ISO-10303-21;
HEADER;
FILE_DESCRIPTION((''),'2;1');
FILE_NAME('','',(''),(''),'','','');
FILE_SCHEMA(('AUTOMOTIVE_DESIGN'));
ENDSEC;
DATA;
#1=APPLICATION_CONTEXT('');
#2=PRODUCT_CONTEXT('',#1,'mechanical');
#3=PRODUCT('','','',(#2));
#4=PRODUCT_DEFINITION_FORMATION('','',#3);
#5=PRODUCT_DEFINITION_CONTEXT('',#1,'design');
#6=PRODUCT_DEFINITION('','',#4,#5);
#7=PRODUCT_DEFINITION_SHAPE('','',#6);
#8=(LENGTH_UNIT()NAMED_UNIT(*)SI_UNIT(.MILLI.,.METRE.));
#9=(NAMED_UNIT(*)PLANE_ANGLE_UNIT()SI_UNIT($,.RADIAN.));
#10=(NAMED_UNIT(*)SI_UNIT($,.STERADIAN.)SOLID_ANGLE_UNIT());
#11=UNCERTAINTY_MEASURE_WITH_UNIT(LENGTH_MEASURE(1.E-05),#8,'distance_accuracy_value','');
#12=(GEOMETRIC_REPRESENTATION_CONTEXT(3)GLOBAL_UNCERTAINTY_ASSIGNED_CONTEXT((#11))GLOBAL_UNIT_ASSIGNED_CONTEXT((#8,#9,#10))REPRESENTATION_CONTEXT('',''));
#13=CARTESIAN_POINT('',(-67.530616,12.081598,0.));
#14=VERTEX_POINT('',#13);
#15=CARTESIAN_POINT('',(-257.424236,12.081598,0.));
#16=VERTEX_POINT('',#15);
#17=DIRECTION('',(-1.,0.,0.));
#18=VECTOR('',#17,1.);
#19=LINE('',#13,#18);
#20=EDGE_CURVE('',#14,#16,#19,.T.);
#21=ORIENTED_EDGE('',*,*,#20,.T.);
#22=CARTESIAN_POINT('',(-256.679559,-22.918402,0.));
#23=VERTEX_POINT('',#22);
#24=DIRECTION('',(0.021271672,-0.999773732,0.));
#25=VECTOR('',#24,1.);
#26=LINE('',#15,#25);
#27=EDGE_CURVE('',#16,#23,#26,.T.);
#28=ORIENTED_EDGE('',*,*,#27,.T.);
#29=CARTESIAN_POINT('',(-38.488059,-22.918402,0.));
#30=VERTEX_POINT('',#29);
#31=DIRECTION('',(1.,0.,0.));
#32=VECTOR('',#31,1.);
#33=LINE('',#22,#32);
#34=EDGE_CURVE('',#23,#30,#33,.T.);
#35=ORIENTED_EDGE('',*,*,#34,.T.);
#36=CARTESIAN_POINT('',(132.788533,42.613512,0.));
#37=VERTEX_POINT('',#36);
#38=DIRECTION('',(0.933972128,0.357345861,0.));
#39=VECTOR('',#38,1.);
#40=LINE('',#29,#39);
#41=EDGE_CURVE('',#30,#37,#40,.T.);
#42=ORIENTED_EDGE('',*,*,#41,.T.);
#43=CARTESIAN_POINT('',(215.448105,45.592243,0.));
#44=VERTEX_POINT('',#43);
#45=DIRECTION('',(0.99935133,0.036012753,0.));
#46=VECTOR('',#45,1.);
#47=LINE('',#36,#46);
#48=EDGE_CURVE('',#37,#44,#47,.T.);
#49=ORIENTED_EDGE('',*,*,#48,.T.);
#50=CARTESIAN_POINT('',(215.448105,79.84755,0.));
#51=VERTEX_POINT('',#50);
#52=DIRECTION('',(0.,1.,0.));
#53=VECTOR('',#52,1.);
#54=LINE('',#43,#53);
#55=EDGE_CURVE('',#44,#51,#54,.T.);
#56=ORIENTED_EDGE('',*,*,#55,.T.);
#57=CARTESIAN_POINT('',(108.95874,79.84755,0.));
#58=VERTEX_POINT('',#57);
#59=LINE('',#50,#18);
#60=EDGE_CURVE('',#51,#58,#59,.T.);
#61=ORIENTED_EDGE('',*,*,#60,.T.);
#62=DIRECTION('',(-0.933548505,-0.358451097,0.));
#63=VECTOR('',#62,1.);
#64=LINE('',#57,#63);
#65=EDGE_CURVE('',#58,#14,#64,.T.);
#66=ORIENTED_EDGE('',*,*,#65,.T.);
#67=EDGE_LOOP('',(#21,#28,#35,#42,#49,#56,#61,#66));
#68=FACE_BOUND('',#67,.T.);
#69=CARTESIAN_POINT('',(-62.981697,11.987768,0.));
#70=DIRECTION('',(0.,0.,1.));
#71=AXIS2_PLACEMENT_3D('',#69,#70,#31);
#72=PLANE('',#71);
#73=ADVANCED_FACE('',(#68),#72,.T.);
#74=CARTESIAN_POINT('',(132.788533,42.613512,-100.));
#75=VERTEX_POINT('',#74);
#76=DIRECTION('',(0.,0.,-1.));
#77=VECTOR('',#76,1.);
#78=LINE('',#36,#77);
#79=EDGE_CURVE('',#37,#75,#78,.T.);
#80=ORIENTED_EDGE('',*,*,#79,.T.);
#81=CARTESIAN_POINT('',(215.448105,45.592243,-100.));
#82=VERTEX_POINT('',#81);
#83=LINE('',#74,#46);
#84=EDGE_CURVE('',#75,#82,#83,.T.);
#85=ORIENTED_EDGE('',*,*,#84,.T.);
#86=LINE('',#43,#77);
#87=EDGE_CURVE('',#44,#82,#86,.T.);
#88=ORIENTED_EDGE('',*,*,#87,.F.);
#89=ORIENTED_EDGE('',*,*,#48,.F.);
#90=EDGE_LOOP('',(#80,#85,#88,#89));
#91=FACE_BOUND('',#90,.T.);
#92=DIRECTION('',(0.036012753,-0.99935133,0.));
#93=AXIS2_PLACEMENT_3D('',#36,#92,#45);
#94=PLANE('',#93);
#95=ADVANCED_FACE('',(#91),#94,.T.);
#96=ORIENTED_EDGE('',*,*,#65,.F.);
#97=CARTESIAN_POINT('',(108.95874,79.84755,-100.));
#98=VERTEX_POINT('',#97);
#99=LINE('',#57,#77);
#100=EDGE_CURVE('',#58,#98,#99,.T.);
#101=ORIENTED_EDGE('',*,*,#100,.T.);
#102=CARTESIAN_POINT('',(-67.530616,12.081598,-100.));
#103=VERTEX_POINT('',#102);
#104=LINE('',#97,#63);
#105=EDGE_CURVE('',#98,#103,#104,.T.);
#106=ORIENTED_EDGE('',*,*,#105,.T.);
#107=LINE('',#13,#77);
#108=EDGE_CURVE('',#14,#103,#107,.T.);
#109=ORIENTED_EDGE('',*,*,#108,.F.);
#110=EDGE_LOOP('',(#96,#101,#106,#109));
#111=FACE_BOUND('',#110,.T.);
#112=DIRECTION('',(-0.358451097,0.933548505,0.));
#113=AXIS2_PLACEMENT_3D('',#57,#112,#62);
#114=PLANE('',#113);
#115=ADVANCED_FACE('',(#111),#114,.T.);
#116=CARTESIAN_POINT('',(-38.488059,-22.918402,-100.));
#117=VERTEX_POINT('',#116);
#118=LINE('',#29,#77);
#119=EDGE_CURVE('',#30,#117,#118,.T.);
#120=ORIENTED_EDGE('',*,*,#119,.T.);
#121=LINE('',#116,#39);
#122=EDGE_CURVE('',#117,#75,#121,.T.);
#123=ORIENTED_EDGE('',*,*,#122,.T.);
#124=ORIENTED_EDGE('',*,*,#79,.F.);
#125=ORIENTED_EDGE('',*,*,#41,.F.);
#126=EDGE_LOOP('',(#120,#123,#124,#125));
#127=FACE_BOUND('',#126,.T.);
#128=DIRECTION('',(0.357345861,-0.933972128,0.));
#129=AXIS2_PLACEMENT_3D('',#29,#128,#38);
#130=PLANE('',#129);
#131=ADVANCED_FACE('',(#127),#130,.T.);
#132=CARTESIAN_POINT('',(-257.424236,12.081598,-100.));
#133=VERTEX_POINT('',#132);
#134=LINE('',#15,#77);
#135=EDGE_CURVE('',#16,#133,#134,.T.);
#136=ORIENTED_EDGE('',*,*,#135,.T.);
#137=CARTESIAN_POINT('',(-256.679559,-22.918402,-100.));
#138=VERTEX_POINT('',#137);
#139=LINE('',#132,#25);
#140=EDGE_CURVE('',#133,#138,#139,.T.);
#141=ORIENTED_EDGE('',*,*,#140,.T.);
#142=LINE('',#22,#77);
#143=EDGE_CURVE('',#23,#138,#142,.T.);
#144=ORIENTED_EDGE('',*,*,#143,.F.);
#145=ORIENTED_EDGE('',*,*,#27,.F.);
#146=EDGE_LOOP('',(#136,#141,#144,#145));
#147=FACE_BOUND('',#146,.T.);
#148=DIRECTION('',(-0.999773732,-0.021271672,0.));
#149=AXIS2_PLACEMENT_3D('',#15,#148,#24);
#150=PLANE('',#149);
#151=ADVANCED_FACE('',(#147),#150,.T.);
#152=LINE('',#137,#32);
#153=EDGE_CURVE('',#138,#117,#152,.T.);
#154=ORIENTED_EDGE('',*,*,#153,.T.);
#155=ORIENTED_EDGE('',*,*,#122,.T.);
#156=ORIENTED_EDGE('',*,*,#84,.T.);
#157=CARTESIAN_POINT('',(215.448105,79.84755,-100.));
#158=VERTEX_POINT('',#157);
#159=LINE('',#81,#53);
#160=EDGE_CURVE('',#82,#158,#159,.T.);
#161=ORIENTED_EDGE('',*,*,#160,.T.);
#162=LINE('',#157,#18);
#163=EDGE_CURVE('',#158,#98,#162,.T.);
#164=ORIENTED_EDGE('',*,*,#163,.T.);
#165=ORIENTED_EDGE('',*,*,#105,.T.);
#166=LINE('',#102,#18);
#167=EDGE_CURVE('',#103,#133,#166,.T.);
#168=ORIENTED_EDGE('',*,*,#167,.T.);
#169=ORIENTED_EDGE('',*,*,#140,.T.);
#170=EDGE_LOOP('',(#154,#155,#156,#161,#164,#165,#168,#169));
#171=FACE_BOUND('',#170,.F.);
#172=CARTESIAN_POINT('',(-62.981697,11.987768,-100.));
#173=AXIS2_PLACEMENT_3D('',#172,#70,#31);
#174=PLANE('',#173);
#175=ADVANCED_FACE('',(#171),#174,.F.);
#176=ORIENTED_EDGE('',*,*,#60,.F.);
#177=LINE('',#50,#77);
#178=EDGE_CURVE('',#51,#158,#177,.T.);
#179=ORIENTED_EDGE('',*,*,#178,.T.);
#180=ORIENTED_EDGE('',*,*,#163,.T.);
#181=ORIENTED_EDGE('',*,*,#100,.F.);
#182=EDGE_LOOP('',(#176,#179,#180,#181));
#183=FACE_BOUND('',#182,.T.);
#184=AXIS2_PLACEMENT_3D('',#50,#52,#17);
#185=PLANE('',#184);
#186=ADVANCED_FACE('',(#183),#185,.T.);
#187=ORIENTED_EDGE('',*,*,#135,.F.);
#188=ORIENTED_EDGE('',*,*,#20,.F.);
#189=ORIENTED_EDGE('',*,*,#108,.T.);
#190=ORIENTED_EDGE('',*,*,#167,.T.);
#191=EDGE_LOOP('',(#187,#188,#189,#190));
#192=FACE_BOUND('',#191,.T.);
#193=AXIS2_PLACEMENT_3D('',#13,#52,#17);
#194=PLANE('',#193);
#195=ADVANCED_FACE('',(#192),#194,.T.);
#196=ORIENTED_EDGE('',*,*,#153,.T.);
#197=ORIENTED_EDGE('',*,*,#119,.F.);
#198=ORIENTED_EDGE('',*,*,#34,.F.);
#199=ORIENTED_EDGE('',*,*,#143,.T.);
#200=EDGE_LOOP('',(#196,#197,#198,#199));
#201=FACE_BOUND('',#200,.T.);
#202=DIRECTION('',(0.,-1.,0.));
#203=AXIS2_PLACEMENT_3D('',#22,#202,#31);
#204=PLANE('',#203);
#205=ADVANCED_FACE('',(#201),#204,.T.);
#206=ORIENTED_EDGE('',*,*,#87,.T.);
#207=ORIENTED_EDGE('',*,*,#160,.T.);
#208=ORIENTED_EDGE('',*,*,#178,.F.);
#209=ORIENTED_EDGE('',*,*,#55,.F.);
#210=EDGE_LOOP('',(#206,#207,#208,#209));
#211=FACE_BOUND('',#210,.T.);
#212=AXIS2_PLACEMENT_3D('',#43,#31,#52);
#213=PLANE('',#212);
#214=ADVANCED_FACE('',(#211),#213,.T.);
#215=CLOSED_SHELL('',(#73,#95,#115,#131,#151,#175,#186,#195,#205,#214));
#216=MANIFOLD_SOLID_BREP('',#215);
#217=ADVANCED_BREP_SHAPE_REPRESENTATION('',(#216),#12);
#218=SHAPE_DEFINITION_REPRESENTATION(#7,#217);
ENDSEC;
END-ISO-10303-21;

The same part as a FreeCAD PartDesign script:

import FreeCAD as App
import Part
import Sketcher

V = App.Vector
Q = App.Units.Quantity


def add_polygon(sketch, points):
    """Adds a closed chain of lines whose ends are joined by coincident constraints."""
    first, n = sketch.GeometryCount, len(points)
    for a, b in zip(points, points[1:] + points[:1]):
        sketch.addGeometry(Part.LineSegment(App.Vector(*a, 0), App.Vector(*b, 0)), False)
    for i in range(n):
        sketch.addConstraint(Sketcher.Constraint("Coincident", first + i, 2, first + (i + 1) % n, 1))

doc = App.newDocument("Part")
body = doc.addObject("PartDesign::Body", "Body")

sketch1 = body.newObject("Sketcher::SketchObject", "Sketch")
sketch1.AttachmentSupport = (doc.getObject("XY_Plane"), [""])
sketch1.MapMode = "FlatFace"
add_polygon(sketch1, [(-68, 12), (-257, 12), (-257, -23), (-38, -23), (133, 43), (215, 46), (215, 80), (109, 80)])
sketch1.addConstraint(Sketcher.Constraint("Horizontal", 0))
sketch1.addConstraint(Sketcher.Constraint("Horizontal", 2))
sketch1.addConstraint(Sketcher.Constraint("Vertical", 5))
sketch1.addConstraint(Sketcher.Constraint("Horizontal", 6))
sketch1.addConstraint(Sketcher.Constraint("DistanceY", 1, 2, 0, 2, Q("35 mm")))
sketch1.addConstraint(Sketcher.Constraint("DistanceX", 2, 1, 2, 2, Q("218.1915 mm")))
sketch1.addConstraint(Sketcher.Constraint("DistanceX", 0, 2, 0, 1, Q("189.89362 mm")))
sketch1.addConstraint(Sketcher.Constraint("DistanceX", 2, 2, 6, 2, Q("147.446799 mm")))
sketch1.addConstraint(Sketcher.Constraint("Distance", 1, Q("35.007921 mm")))
sketch1.addConstraint(Sketcher.Constraint("Distance", 3, Q("183.385121 mm")))
sketch1.addConstraint(Sketcher.Constraint("DistanceX", 6, 2, 6, 1, Q("106.489365 mm")))
sketch1.addConstraint(Sketcher.Constraint("DistanceY", 5, 1, 5, 2, Q("34.255307 mm")))
sketch1.addConstraint(Sketcher.Constraint("DistanceX", 1, 2, -1, 1, Q("256.679559 mm")))
sketch1.addConstraint(Sketcher.Constraint("DistanceY", -1, 1, 5, 2, Q("79.84755 mm")))
sketch1.addConstraint(Sketcher.Constraint("DistanceX", 2, 2, 3, 2, Q("171.276592 mm")))
sketch1.addConstraint(Sketcher.Constraint("DistanceY", 3, 2, 4, 2, Q("2.978731 mm")))
pad1 = body.newObject("PartDesign::Pad", "Pad")
pad1.Profile = sketch1
pad1.Length = 100
pad1.Reversed = True

doc.recompute()
